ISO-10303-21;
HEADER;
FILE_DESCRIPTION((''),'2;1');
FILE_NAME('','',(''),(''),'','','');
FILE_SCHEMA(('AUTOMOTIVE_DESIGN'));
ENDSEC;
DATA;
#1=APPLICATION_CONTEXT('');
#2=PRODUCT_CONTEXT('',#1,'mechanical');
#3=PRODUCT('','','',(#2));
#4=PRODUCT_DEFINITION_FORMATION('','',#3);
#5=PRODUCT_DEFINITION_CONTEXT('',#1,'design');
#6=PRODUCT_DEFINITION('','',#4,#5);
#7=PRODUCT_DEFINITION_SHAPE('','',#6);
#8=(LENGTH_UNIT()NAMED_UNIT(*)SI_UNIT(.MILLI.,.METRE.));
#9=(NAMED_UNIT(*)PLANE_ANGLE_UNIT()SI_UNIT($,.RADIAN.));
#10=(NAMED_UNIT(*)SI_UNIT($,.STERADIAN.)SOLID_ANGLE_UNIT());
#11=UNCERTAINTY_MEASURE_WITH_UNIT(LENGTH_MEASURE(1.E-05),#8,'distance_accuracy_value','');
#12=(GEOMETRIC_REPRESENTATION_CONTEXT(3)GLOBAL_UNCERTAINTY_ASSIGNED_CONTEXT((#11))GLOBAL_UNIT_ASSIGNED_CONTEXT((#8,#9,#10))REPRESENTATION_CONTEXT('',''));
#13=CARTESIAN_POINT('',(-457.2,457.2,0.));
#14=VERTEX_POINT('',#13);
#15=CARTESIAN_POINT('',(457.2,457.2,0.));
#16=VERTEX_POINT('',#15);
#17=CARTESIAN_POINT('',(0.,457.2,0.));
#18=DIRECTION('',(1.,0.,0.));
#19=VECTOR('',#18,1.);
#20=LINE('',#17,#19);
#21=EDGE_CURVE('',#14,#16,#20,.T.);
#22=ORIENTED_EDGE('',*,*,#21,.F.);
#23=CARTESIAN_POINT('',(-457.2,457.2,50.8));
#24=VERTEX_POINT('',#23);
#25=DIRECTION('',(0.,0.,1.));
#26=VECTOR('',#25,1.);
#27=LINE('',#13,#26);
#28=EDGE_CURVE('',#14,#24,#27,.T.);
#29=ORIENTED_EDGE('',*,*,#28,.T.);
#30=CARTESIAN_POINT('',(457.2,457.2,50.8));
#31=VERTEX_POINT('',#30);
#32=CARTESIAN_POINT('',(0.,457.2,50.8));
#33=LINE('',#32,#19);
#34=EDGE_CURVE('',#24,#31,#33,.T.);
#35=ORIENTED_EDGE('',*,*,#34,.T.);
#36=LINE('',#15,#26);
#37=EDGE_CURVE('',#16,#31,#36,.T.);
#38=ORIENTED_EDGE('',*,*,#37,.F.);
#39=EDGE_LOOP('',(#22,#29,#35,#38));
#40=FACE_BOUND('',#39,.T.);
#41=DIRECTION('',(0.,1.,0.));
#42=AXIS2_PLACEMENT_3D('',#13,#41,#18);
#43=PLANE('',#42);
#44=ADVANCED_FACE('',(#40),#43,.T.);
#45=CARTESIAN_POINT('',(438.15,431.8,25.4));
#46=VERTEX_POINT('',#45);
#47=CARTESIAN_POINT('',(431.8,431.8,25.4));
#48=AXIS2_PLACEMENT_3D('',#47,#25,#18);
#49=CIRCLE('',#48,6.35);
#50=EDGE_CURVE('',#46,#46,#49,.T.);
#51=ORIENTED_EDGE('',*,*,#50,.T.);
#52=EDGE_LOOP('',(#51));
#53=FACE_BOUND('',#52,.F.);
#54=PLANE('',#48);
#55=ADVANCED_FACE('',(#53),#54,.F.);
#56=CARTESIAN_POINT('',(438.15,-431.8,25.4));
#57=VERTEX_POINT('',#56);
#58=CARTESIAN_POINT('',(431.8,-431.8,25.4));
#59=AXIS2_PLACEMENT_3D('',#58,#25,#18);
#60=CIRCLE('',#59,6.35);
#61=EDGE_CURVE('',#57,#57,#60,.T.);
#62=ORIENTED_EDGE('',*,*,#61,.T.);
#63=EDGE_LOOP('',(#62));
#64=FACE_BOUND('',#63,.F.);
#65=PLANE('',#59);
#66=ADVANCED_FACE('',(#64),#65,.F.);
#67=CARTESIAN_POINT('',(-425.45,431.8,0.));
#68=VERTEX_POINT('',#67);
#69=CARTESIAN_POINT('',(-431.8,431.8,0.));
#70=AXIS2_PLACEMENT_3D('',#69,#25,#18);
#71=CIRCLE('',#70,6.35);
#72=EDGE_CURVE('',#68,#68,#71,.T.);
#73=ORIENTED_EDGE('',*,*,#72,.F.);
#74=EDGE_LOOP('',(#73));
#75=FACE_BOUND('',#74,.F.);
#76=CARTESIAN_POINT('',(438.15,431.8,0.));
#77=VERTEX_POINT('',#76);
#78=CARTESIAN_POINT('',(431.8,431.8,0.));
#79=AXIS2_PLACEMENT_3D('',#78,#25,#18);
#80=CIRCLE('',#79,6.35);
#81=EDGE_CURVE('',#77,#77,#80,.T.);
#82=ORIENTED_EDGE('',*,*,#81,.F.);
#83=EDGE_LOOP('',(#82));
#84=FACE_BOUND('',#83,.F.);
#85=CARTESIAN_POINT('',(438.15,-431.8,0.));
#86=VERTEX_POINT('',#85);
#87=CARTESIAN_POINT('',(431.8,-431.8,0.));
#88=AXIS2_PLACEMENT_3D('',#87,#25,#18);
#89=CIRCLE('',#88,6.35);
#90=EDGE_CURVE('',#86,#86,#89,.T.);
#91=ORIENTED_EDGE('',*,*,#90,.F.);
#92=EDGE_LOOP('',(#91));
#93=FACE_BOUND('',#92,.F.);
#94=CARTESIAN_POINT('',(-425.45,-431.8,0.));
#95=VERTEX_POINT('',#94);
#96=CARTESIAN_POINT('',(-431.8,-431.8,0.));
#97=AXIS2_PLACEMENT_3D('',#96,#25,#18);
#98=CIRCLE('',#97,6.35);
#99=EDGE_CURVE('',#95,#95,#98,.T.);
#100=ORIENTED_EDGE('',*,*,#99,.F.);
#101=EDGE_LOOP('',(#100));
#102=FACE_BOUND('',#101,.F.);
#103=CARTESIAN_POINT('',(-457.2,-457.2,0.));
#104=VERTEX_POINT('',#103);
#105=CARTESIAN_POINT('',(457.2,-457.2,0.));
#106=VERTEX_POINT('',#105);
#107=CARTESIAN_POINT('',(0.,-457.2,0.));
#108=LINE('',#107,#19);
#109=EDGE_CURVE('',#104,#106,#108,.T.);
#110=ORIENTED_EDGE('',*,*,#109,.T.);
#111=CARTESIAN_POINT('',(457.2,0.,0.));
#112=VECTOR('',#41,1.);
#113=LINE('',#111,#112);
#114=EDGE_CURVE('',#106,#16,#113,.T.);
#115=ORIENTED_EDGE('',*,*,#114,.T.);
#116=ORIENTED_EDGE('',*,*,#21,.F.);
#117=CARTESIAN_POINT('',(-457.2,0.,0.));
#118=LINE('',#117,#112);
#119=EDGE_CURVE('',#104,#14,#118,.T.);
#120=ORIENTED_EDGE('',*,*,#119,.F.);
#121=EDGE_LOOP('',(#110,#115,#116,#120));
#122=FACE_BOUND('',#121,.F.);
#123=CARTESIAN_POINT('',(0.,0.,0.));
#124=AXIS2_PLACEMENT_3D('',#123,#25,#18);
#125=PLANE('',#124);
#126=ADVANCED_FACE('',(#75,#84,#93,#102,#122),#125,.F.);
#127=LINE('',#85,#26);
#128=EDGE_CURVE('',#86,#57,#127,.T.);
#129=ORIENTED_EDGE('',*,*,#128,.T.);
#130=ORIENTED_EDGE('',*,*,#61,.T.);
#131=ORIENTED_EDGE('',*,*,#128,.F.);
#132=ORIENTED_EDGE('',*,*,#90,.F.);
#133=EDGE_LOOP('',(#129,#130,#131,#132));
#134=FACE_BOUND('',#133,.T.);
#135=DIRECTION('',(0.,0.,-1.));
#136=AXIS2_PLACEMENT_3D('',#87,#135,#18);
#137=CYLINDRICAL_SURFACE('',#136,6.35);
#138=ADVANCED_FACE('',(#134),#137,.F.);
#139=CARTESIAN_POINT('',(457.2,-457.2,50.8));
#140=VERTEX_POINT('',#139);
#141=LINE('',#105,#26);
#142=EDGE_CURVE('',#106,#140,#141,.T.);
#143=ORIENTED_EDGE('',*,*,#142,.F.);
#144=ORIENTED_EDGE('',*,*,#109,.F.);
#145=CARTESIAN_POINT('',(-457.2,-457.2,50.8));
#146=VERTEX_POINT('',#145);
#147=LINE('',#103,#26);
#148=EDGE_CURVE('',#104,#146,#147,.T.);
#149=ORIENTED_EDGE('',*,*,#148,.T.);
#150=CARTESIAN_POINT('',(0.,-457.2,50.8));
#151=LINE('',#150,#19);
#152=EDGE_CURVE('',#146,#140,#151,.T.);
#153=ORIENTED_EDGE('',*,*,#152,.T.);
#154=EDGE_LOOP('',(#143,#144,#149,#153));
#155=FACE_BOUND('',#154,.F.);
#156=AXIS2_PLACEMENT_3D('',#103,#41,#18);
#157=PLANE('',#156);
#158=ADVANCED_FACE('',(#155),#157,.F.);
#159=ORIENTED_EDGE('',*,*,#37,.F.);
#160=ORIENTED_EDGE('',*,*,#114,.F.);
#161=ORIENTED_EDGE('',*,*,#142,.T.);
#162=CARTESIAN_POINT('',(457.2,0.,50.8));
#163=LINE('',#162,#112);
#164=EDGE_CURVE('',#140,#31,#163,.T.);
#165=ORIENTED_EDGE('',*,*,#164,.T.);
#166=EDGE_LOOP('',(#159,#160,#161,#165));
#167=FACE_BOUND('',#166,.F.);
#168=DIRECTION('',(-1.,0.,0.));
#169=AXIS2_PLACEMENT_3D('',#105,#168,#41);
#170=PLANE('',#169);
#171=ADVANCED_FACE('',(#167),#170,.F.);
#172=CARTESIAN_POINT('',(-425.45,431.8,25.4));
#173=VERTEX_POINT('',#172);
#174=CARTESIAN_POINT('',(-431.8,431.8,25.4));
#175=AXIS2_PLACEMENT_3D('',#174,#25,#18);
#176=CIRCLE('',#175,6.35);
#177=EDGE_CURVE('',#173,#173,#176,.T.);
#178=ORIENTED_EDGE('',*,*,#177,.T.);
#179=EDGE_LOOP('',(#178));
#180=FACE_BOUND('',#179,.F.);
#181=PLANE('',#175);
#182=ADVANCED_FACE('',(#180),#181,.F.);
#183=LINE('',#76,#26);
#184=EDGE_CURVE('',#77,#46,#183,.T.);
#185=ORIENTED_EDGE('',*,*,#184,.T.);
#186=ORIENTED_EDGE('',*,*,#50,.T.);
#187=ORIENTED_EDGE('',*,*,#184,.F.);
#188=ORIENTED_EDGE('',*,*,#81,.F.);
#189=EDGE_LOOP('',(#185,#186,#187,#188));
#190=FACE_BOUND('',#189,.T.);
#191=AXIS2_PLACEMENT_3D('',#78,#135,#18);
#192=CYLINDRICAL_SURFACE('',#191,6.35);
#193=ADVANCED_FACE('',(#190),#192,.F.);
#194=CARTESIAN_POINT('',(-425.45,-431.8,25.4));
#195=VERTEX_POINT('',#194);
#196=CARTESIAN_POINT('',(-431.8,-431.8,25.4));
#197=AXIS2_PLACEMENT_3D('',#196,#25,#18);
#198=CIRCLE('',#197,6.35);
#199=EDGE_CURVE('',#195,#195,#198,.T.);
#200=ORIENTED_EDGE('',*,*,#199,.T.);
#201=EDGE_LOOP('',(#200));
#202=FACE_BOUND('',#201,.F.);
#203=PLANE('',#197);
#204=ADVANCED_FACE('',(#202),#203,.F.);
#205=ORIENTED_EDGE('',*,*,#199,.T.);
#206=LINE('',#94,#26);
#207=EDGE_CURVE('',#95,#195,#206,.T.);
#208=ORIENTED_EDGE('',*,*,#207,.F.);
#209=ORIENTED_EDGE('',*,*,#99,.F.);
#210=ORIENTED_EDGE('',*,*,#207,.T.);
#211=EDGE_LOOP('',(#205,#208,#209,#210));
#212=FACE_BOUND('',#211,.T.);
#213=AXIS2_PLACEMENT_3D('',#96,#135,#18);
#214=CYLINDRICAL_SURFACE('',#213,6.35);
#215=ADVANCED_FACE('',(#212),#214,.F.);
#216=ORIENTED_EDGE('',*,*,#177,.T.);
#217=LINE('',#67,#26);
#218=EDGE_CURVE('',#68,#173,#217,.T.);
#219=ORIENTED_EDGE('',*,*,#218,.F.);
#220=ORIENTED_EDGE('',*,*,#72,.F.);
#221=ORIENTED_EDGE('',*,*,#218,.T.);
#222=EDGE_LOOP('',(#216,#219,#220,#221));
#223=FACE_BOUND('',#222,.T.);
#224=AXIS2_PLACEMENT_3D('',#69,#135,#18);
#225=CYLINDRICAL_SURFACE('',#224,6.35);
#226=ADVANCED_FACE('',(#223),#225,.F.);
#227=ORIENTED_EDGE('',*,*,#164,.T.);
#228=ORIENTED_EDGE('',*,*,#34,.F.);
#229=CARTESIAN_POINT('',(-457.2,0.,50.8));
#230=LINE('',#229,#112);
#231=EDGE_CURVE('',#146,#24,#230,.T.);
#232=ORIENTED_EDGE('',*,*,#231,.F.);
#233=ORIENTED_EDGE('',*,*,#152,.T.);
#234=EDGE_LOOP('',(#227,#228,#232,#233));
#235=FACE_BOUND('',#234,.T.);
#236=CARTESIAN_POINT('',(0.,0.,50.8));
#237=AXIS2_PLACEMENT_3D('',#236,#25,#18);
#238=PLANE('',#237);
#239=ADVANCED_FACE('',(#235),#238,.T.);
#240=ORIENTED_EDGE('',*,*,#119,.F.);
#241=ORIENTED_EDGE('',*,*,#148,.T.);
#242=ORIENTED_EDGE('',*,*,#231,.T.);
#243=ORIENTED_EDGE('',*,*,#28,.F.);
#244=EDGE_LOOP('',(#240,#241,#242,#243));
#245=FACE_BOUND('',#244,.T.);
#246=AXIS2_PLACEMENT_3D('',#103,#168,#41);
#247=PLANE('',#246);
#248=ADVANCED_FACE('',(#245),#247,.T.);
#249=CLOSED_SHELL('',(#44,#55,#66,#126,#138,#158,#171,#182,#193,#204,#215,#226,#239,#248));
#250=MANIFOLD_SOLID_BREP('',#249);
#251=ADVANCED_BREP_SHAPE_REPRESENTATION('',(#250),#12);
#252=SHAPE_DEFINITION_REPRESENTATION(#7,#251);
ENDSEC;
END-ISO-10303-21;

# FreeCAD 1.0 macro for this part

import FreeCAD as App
import Part
import Sketcher

V = App.Vector
Q = App.Units.Quantity

doc = App.newDocument("Part")
params = doc.addObject("Spreadsheet::Sheet", "Params")
for row, (alias, value) in enumerate([
    ("sketch1_width", "36 in"),
    ("pad1_length", "2 in"),
    ("sketch2_diameter", "0.5 in"),
    ("pocket1_length", "1 in"),
], start=1):
    params.set(f"A{row}", alias)
    params.set(f"B{row}", "=" + value)
    params.setAlias(f"B{row}", alias)

body = doc.addObject("PartDesign::Body", "Body")

sketch1 = body.newObject("Sketcher::SketchObject", "Sketch")
sketch1.AttachmentSupport = (doc.getObject("XY_Plane"), [""])
sketch1.MapMode = "FlatFace"
sketch1.addGeometry(Part.LineSegment(V(-457.2, 457.2, 0), V(-457.2, -457.2, 0)), False)
sketch1.addGeometry(Part.LineSegment(V(-457.2, -457.2, 0), V(457.2, -457.2, 0)), False)
sketch1.addGeometry(Part.LineSegment(V(457.2, -457.2, 0), V(457.2, 457.2, 0)), False)
sketch1.addGeometry(Part.LineSegment(V(457.2, 457.2, 0), V(-457.2, 457.2, 0)), False)
sketch1.addConstraint(Sketcher.Constraint("Coincident", 0, 2, 1, 1))
sketch1.addConstraint(Sketcher.Constraint("Coincident", 1, 2, 2, 1))
sketch1.addConstraint(Sketcher.Constraint("Coincident", 2, 2, 3, 1))
sketch1.addConstraint(Sketcher.Constraint("Coincident", 3, 2, 0, 1))
sketch1.addConstraint(Sketcher.Constraint("Vertical", 0))
sketch1.addConstraint(Sketcher.Constraint("Horizontal", 1))
sketch1.addConstraint(Sketcher.Constraint("Vertical", 2))
sketch1.addConstraint(Sketcher.Constraint("Horizontal", 3))
sketch1.addConstraint(Sketcher.Constraint("Symmetric", 0, 2, 2, 2, -1, 1))
sketch1.addConstraint(Sketcher.Constraint("Equal", 3, 0))
sketch1.addConstraint(Sketcher.Constraint("DistanceX", 1, 1, 1, 2, Q("36 in")))
sketch1.setExpression("Constraints[10]", "Params.sketch1_width")
pad1 = body.newObject("PartDesign::Pad", "Pad")
pad1.Profile = sketch1
pad1.setExpression("Length", "Params.pad1_length")

sketch2 = body.newObject("Sketcher::SketchObject", "Sketch001")
sketch2.AttachmentSupport = (doc.getObject("XY_Plane"), [""])
sketch2.MapMode = "FlatFace"
sketch2.addGeometry(Part.Circle(V(-431.8, -431.8, 0), V(0, 0, 1), 6.35), False)
sketch2.addGeometry(Part.Circle(V(431.8, -431.8, 0), V(0, 0, 1), 6.35), False)
sketch2.addGeometry(Part.Circle(V(431.8, 431.8, 0), V(0, 0, 1), 6.35), False)
sketch2.addGeometry(Part.Circle(V(-431.8, 431.8, 0), V(0, 0, 1), 6.35), False)
sketch2.addConstraint(Sketcher.Constraint("Equal", 0, 1))
sketch2.addConstraint(Sketcher.Constraint("Equal", 1, 2))
sketch2.addConstraint(Sketcher.Constraint("Equal", 2, 3))
sketch2.addConstraint(Sketcher.Constraint("Symmetric", 0, 3, 2, 3, -1, 1))
sketch2.addConstraint(Sketcher.Constraint("Symmetric", 1, 3, 3, 3, -1, 1))
sketch2.addConstraint(Sketcher.Constraint("Symmetric", 0, 3, 1, 3, -2))
sketch2.addConstraint(Sketcher.Constraint("Diameter", 0, Q("0.5 in")))
sketch2.addConstraint(Sketcher.Constraint("DistanceX", 0, 3, -1, 1, Q("17 in")))
sketch2.addConstraint(Sketcher.Constraint("DistanceY", 0, 3, -1, 1, Q("17 in")))
sketch2.setExpression("Constraints[6]", "Params.sketch2_diameter")
pocket1 = body.newObject("PartDesign::Pocket", "Pocket")
pocket1.Profile = sketch2
pocket1.setExpression("Length", "Params.pocket1_length")
pocket1.Reversed = True

doc.recompute()
